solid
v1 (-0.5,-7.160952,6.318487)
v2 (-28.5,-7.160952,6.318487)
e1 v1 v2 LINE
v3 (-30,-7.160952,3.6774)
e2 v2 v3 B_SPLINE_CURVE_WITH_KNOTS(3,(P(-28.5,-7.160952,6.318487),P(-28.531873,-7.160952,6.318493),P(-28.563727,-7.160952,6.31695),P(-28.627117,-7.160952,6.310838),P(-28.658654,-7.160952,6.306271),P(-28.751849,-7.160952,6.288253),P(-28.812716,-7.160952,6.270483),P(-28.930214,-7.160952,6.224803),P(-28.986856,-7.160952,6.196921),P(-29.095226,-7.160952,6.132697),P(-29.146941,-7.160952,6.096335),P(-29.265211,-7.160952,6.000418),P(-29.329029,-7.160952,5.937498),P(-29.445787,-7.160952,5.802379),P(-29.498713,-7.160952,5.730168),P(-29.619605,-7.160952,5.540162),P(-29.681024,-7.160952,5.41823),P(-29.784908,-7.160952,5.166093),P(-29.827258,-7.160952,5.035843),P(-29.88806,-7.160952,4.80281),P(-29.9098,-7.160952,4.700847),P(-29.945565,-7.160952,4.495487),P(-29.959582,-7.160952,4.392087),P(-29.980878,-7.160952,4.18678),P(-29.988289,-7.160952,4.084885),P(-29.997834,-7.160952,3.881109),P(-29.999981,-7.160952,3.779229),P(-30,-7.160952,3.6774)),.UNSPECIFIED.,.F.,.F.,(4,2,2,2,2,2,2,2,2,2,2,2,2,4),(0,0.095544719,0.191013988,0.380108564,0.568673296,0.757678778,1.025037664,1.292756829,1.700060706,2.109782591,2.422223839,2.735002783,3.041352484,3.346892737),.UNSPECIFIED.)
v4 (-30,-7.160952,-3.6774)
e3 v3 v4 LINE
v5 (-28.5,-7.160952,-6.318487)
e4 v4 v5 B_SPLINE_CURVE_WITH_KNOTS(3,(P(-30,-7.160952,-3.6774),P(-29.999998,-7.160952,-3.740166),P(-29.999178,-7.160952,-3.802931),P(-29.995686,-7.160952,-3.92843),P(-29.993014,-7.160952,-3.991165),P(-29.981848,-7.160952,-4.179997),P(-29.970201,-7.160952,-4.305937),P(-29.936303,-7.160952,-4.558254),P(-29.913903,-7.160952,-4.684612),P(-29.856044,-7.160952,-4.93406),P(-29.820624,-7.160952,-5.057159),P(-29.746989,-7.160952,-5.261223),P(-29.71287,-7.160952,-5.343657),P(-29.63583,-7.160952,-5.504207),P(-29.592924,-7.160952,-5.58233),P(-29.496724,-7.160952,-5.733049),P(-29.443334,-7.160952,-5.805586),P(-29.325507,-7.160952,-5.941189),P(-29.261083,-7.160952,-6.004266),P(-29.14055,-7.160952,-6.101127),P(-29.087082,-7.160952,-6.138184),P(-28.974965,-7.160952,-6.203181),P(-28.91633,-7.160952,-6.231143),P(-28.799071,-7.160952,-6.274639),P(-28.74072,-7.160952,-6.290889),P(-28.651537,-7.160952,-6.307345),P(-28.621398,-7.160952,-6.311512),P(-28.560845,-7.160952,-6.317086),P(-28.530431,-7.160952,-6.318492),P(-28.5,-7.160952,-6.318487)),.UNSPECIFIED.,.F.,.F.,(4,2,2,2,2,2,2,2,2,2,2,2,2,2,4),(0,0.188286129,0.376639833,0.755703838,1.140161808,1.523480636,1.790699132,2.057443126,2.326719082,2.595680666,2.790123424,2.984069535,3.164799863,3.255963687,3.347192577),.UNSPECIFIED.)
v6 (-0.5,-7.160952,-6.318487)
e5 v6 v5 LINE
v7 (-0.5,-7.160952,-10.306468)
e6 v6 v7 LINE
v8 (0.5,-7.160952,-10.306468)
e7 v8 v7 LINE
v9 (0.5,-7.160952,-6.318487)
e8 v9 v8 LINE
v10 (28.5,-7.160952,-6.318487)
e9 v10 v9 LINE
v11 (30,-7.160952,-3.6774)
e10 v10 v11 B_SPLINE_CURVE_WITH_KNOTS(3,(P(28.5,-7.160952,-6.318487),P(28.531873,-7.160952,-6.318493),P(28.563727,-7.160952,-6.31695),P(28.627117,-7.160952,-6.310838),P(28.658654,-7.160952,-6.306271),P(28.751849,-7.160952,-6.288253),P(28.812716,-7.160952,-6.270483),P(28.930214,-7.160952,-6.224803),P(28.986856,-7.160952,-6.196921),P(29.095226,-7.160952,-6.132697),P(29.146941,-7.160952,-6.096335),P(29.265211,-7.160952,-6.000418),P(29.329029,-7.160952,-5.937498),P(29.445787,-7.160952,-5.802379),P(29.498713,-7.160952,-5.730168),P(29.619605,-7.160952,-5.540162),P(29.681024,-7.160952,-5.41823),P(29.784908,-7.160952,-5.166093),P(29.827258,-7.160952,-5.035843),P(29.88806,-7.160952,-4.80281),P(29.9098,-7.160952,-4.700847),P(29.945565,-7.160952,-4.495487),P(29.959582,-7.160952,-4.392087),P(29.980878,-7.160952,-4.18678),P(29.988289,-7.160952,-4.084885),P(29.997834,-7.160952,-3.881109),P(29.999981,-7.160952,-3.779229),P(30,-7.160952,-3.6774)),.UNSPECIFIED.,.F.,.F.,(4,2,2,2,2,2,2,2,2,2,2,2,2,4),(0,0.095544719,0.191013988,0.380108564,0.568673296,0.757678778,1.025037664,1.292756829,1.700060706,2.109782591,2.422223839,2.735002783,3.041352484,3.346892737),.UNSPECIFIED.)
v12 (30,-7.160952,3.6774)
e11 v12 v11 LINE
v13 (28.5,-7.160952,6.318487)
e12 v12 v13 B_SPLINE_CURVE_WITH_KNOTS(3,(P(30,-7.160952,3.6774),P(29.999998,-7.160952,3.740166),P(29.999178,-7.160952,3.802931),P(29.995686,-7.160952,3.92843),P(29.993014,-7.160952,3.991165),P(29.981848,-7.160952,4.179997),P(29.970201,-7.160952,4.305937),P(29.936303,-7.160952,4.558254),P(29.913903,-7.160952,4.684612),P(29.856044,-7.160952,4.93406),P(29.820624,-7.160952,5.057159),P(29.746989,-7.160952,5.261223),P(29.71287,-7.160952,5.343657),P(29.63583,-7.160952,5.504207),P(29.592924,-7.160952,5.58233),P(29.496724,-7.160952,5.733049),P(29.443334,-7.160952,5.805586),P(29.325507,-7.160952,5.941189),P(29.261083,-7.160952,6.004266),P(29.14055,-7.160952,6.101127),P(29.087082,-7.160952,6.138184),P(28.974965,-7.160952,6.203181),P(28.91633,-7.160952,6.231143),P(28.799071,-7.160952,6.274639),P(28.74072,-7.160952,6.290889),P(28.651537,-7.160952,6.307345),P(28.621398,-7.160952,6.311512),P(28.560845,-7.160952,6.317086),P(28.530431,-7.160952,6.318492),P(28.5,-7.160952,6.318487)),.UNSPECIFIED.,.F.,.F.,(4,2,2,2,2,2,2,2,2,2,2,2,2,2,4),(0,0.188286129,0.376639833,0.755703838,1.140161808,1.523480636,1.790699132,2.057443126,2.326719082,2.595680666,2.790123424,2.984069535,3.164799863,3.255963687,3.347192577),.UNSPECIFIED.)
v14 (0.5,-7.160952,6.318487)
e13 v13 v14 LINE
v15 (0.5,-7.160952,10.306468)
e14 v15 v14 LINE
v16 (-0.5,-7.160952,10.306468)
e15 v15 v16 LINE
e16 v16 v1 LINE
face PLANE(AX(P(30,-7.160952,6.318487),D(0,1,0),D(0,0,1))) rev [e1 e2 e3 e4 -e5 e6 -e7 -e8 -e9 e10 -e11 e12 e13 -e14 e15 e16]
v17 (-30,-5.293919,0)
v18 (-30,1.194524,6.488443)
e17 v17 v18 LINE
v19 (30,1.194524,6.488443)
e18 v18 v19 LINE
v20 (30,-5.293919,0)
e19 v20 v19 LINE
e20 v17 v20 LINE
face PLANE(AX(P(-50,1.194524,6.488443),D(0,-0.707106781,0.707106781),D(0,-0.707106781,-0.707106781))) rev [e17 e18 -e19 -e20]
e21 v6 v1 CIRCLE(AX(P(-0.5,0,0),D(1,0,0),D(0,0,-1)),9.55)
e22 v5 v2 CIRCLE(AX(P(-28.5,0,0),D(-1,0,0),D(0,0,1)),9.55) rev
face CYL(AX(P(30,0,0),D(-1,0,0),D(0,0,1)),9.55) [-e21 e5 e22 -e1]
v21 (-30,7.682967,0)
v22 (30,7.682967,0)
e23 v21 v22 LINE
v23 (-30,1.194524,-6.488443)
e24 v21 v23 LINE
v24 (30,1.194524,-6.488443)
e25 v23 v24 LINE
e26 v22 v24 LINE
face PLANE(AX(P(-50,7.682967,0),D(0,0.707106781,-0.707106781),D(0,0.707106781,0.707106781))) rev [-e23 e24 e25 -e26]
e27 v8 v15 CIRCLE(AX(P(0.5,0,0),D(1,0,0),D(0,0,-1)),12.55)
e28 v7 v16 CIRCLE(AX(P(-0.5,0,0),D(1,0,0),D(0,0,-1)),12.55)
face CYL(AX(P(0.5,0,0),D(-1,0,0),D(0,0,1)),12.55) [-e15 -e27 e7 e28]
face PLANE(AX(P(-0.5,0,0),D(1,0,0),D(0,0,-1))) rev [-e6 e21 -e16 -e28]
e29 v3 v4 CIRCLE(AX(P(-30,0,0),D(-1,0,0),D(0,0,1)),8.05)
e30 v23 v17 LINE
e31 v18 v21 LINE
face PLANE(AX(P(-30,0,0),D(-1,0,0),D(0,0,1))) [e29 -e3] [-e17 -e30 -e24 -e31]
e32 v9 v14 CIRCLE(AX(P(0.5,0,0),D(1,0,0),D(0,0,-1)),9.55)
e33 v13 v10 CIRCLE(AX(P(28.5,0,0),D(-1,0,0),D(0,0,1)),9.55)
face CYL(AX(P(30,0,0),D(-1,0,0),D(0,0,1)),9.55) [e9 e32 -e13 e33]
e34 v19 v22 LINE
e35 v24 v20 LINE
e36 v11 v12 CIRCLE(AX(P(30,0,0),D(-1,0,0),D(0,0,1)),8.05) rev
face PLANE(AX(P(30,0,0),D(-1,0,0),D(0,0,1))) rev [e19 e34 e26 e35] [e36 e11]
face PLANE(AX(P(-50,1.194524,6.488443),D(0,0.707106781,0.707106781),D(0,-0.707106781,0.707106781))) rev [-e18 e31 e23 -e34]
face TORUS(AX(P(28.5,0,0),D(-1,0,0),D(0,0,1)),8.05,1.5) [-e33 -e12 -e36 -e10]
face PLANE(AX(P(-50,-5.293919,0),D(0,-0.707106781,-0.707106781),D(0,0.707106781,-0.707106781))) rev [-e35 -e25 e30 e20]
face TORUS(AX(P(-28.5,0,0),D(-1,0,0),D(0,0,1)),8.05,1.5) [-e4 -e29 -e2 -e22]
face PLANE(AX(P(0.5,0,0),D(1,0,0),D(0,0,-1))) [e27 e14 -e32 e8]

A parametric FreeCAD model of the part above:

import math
import FreeCAD as App
import Part
import Sketcher


def edges_at(feature, points):
    """Names of the edges that pass closest to the given points."""
    edges = feature.Shape.Edges
    near = lambda p: min(range(len(edges)), key=lambda i: edges[i].distToShape(Part.Vertex(*p))[0])
    return sorted({f"Edge{near(p) + 1}" for p in points})

doc = App.newDocument("Part")
params = doc.addObject("Spreadsheet::Sheet", "Params")
for row, (alias, value) in enumerate([
    ("sketch1_radius", "9.55 mm"),
    ("pad1_length", "60 mm"),
    ("sketch2_radius", "12.55 mm"),
    ("pad2_length", "1 mm"),
    ("pocket1_length", "100 mm"),
    ("fillet_radius", "1.5 mm"),
], start=1):
    params.set(f"A{row}", alias)
    params.set(f"B{row}", "=" + value)
    params.setAlias(f"B{row}", alias)

body = doc.addObject("PartDesign::Body", "Body")

# Sketch on YZ plane
sketch1 = doc.addObject("Sketcher::SketchObject", "Sketch")
body.addObject(sketch1)
sketch1.AttachmentSupport = (doc.YZ_Plane, [""])
sketch1.MapMode = "FlatFace"
sketch1.addGeometry(Part.LineSegment(App.Vector(-7, 6, 0), App.Vector(-7, -6, 0)), False)
sketch1.addGeometry(Part.ArcOfCircle(Part.Circle(App.Vector(0, 0, 0), App.Vector(0, 0, 1), 10), math.radians(-139), math.radians(139)), False)
sketch1.addConstraint(Sketcher.Constraint("Coincident", 0, 1, 1, 2))
sketch1.addConstraint(Sketcher.Constraint("Coincident", 1, 1, 0, 2))
sketch1.addConstraint(Sketcher.Constraint("Vertical", 0))
sketch1.addConstraint(Sketcher.Constraint("Coincident", 1, 3, -1, 1))
sketch1.addConstraint(Sketcher.Constraint("Radius", 1, 9.55))
sketch1.addConstraint(Sketcher.Constraint("DistanceY", 0, 2, 0, 1, 12.636973))
sketch1.setExpression("Constraints[4]", "Params.sketch1_radius")
pad1 = doc.addObject("PartDesign::Pad", "Pad")
body.addObject(pad1)
pad1.Profile = sketch1
pad1.setExpression("Length", "Params.pad1_length")
pad1.Midplane = True

# Sketch on YZ plane
sketch2 = doc.addObject("Sketcher::SketchObject", "Sketch001")
body.addObject(sketch2)
sketch2.AttachmentSupport = (doc.YZ_Plane, [""])
sketch2.MapMode = "FlatFace"
sketch2.addGeometry(Part.LineSegment(App.Vector(-7, 10, 0), App.Vector(-7, -10, 0)), False)
sketch2.addGeometry(Part.ArcOfCircle(Part.Circle(App.Vector(0, 0, 0), App.Vector(0, 0, 1), 13), math.radians(-125), math.radians(125)), False)
sketch2.addConstraint(Sketcher.Constraint("Coincident", 0, 1, 1, 2))
sketch2.addConstraint(Sketcher.Constraint("Coincident", 1, 1, 0, 2))
sketch2.addConstraint(Sketcher.Constraint("Vertical", 0))
sketch2.addConstraint(Sketcher.Constraint("Coincident", 1, 3, -1, 1))
sketch2.addConstraint(Sketcher.Constraint("Radius", 1, 12.55))
sketch2.addConstraint(Sketcher.Constraint("DistanceY", 0, 2, 0, 1, 20.612935))
sketch2.setExpression("Constraints[4]", "Params.sketch2_radius")
pad2 = doc.addObject("PartDesign::Pad", "Pad001")
body.addObject(pad2)
pad2.Profile = sketch2
pad2.setExpression("Length", "Params.pad2_length")
pad2.Midplane = True

# Sketch on YZ plane
sketch3 = doc.addObject("Sketcher::SketchObject", "Sketch002")
body.addObject(sketch3)
sketch3.AttachmentSupport = (doc.YZ_Plane, [""])
sketch3.MapMode = "FlatFace"
sketch3.addGeometry(Part.LineSegment(App.Vector(1, 6, 0), App.Vector(-5, 0, 0)), False)
sketch3.addGeometry(Part.LineSegment(App.Vector(-5, 0, 0), App.Vector(1, -6, 0)), False)
sketch3.addGeometry(Part.LineSegment(App.Vector(1, -6, 0), App.Vector(8, 0, 0)), False)
sketch3.addGeometry(Part.LineSegment(App.Vector(8, 0, 0), App.Vector(1, 6, 0)), False)
sketch3.addConstraint(Sketcher.Constraint("Coincident", 0, 2, 1, 1))
sketch3.addConstraint(Sketcher.Constraint("Coincident", 1, 2, 2, 1))
sketch3.addConstraint(Sketcher.Constraint("Coincident", 2, 2, 3, 1))
sketch3.addConstraint(Sketcher.Constraint("Coincident", 3, 2, 0, 1))
sketch3.addConstraint(Sketcher.Constraint("Symmetric", 1, 2, 3, 2, -1))
sketch3.addConstraint(Sketcher.Constraint("PointOnObject", 0, 2, -1))
sketch3.addConstraint(Sketcher.Constraint("PointOnObject", 2, 2, -1))
sketch3.addConstraint(Sketcher.Constraint("Perpendicular", 0, 1))
sketch3.addConstraint(Sketcher.Constraint("Perpendicular", 1, 2))
sketch3.addConstraint(Sketcher.Constraint("DistanceX", 0, 2, -1, 1, 5.293919))
sketch3.addConstraint(Sketcher.Constraint("Distance", 0, 9.176044))
pocket1 = doc.addObject("PartDesign::Pocket", "Pocket")
body.addObject(pocket1)
pocket1.Profile = sketch3
pocket1.setExpression("Length", "Params.pocket1_length")
pocket1.Midplane = True
doc.recompute()

fillet = doc.addObject("PartDesign::Fillet", "Fillet")
body.addObject(fillet)
fillet.Base = (pocket1, edges_at(pocket1, [(-30, 9.55, 0), (30, 9.55, 0)]))
fillet.setExpression("Radius", "Params.fillet_radius")

doc.recompute()
